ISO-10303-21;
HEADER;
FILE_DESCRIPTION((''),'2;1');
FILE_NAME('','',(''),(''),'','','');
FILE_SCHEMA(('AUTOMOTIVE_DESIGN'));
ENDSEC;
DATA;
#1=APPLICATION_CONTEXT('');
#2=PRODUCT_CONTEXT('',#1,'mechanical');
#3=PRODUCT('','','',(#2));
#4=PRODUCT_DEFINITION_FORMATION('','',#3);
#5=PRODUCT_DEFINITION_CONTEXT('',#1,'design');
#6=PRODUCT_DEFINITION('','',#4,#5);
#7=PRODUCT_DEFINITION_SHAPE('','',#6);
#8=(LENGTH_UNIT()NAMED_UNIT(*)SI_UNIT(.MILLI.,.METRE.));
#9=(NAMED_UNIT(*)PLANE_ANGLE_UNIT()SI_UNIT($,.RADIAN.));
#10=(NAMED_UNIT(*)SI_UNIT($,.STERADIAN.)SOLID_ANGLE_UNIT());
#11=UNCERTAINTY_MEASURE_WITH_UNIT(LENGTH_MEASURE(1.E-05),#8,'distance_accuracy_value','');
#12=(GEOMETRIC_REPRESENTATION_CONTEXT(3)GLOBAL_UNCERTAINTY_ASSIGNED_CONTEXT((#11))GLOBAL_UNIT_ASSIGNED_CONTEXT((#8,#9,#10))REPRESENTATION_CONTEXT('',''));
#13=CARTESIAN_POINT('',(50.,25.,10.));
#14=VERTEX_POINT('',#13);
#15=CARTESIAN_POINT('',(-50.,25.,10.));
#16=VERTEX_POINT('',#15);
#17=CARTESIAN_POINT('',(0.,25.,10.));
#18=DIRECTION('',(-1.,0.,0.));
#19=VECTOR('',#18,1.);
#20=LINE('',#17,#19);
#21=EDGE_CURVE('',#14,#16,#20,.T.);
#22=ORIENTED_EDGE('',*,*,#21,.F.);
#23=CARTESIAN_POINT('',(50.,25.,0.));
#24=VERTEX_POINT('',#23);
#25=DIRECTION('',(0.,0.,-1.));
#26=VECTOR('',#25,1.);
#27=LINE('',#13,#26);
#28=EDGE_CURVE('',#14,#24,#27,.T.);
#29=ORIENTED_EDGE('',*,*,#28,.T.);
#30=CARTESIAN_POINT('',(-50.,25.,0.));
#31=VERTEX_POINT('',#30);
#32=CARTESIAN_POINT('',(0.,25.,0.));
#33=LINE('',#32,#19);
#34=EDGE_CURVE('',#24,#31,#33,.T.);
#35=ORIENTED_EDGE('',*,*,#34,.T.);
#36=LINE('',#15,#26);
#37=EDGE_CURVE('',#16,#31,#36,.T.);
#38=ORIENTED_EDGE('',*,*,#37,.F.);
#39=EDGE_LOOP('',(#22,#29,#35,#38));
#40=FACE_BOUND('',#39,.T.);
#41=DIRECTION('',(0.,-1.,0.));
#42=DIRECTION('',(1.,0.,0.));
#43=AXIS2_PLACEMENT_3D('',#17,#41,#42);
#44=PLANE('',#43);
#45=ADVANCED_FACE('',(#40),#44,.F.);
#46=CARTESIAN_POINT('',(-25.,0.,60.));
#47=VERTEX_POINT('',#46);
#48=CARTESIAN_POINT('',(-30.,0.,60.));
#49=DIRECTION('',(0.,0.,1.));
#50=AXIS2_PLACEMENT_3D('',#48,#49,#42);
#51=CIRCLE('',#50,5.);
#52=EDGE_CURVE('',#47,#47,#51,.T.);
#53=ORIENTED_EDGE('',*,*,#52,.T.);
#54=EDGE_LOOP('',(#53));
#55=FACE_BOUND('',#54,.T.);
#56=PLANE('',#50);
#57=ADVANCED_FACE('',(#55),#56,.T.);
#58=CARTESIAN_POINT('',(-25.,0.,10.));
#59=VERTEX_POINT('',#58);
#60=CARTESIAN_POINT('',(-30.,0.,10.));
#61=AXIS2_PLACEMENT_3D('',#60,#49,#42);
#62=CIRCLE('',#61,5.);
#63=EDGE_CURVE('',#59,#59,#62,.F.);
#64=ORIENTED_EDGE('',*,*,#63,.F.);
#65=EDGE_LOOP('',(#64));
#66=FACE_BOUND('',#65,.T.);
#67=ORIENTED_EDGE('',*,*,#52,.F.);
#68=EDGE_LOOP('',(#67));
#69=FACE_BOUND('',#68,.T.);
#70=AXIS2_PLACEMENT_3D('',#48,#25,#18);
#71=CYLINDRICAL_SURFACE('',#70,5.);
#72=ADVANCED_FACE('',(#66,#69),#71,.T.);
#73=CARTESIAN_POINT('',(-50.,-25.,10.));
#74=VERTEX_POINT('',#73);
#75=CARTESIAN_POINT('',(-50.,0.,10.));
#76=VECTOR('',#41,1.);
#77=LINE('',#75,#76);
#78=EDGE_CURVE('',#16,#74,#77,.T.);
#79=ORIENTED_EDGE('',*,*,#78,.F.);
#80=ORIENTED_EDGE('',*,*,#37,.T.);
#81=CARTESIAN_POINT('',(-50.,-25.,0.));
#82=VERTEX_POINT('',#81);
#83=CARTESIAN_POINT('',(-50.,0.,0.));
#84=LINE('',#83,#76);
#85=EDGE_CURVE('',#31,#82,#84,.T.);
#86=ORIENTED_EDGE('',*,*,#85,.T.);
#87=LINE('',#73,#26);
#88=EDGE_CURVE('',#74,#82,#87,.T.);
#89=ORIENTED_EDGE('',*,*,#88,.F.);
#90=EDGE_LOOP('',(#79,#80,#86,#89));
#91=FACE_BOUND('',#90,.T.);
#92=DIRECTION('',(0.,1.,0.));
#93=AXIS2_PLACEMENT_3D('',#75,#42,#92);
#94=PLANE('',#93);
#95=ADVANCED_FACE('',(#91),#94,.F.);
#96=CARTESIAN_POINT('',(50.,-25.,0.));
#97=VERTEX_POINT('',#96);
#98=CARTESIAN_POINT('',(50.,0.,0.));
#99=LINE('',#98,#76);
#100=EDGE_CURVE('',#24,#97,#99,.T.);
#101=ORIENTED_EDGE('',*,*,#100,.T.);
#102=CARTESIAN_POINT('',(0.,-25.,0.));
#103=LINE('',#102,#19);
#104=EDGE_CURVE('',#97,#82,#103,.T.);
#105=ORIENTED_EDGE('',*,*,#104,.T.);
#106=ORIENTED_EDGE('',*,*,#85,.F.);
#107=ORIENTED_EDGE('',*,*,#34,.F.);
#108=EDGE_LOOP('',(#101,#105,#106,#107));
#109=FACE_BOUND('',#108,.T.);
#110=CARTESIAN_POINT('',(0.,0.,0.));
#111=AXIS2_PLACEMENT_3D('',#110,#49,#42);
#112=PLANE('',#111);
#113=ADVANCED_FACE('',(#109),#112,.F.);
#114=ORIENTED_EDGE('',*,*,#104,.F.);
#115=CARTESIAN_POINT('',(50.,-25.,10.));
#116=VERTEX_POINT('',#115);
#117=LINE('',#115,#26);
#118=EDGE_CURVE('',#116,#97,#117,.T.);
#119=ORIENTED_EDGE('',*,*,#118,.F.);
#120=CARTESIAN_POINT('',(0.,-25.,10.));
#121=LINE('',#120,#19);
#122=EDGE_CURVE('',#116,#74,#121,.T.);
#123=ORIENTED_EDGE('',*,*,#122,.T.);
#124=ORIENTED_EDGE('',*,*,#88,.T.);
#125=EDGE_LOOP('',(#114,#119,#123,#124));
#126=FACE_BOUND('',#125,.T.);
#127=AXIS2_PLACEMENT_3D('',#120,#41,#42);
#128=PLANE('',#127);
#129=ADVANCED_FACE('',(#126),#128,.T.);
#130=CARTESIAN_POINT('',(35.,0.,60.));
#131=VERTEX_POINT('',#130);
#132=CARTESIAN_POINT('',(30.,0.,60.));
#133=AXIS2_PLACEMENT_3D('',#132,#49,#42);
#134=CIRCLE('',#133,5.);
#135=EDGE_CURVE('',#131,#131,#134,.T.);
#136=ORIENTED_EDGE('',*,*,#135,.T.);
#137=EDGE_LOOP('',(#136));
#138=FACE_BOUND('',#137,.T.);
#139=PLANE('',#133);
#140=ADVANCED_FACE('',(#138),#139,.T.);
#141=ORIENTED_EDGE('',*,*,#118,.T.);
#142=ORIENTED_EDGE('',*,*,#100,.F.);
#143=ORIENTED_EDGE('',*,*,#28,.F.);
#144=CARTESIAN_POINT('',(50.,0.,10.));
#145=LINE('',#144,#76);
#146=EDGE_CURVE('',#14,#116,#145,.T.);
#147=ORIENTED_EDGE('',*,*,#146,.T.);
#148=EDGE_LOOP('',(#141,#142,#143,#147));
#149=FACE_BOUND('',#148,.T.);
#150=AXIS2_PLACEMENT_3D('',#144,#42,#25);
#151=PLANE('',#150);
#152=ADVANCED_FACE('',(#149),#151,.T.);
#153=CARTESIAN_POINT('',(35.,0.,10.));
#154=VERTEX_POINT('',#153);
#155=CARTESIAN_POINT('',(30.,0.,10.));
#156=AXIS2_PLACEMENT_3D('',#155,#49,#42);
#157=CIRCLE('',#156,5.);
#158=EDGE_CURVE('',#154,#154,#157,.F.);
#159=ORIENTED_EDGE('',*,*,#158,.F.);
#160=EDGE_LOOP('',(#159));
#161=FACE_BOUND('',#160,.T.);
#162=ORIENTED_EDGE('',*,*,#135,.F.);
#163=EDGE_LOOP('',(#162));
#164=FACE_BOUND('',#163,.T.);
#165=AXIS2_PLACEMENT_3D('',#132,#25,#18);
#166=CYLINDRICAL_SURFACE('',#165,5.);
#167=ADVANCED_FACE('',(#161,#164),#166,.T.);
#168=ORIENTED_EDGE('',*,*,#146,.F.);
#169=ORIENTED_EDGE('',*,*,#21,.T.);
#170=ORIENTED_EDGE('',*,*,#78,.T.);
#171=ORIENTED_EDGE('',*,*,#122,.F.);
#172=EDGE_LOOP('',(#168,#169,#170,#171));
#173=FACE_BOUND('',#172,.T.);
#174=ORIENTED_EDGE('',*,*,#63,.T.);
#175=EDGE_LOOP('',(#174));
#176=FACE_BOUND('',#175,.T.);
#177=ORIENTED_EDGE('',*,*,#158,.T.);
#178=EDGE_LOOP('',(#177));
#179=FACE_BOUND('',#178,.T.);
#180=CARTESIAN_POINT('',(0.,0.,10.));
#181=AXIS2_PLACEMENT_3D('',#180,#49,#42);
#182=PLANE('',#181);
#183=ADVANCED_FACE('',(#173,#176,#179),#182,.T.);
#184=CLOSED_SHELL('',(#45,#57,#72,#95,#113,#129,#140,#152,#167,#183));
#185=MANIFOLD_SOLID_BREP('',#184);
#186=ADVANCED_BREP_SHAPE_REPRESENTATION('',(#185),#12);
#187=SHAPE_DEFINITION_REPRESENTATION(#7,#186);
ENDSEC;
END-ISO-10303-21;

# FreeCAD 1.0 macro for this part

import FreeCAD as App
import Part
import Sketcher


def add_polygon(sketch, points):
    """Adds a closed chain of lines whose ends are joined by coincident constraints."""
    first, n = sketch.GeometryCount, len(points)
    for a, b in zip(points, points[1:] + points[:1]):
        sketch.addGeometry(Part.LineSegment(App.Vector(*a, 0), App.Vector(*b, 0)), False)
    for i in range(n):
        sketch.addConstraint(Sketcher.Constraint("Coincident", first + i, 2, first + (i + 1) % n, 1))

doc = App.newDocument("Part")
body = doc.addObject("PartDesign::Body", "Body")

# Sketch on XY plane
sketch1 = body.newObject("Sketcher::SketchObject", "Sketch")
sketch1.AttachmentSupport = (doc.getObject("XY_Plane"), [""])
sketch1.MapMode = "FlatFace"
add_polygon(sketch1, [(-50, 25), (-50, -25), (50, -25), (50, 25)])  # lines 0-3
sketch1.addConstraint(Sketcher.Constraint("Vertical", 0))
sketch1.addConstraint(Sketcher.Constraint("Horizontal", 1))
sketch1.addConstraint(Sketcher.Constraint("Vertical", 2))
sketch1.addConstraint(Sketcher.Constraint("Horizontal", 3))
sketch1.addConstraint(Sketcher.Constraint("Symmetric", 0, 2, 2, 2, -1, 1))
sketch1.addConstraint(Sketcher.Constraint("DistanceX", 1, 1, 1, 2, 100.0))
sketch1.addConstraint(Sketcher.Constraint("DistanceY", 0, 2, 0, 1, 50.0))
pad1 = body.newObject("PartDesign::Pad", "Pad")
pad1.Profile = sketch1
pad1.Length = 10

# Sketch on XY plane
sketch2 = body.newObject("Sketcher::SketchObject", "Sketch001")
sketch2.AttachmentSupport = (doc.getObject("XY_Plane"), [""])
sketch2.MapMode = "FlatFace"
sketch2.addGeometry(Part.Circle(App.Vector(-30, 0, 0), App.Vector(0, 0, 1), 5), False)
sketch2.addGeometry(Part.Circle(App.Vector(30, 0, 0), App.Vector(0, 0, 1), 5), False)
sketch2.addConstraint(Sketcher.Constraint("Equal", 0, 1))
sketch2.addConstraint(Sketcher.Constraint("Symmetric", 0, 3, 1, 3, -1, 1))
sketch2.addConstraint(Sketcher.Constraint("PointOnObject", 0, 3, -1))
sketch2.addConstraint(Sketcher.Constraint("Diameter", 0, 10.0))
sketch2.addConstraint(Sketcher.Constraint("DistanceX", 0, 3, -1, 1, 30.0))
pad2 = body.newObject("PartDesign::Pad", "Pad001")
pad2.Profile = sketch2
pad2.Length = 60

doc.recompute()
